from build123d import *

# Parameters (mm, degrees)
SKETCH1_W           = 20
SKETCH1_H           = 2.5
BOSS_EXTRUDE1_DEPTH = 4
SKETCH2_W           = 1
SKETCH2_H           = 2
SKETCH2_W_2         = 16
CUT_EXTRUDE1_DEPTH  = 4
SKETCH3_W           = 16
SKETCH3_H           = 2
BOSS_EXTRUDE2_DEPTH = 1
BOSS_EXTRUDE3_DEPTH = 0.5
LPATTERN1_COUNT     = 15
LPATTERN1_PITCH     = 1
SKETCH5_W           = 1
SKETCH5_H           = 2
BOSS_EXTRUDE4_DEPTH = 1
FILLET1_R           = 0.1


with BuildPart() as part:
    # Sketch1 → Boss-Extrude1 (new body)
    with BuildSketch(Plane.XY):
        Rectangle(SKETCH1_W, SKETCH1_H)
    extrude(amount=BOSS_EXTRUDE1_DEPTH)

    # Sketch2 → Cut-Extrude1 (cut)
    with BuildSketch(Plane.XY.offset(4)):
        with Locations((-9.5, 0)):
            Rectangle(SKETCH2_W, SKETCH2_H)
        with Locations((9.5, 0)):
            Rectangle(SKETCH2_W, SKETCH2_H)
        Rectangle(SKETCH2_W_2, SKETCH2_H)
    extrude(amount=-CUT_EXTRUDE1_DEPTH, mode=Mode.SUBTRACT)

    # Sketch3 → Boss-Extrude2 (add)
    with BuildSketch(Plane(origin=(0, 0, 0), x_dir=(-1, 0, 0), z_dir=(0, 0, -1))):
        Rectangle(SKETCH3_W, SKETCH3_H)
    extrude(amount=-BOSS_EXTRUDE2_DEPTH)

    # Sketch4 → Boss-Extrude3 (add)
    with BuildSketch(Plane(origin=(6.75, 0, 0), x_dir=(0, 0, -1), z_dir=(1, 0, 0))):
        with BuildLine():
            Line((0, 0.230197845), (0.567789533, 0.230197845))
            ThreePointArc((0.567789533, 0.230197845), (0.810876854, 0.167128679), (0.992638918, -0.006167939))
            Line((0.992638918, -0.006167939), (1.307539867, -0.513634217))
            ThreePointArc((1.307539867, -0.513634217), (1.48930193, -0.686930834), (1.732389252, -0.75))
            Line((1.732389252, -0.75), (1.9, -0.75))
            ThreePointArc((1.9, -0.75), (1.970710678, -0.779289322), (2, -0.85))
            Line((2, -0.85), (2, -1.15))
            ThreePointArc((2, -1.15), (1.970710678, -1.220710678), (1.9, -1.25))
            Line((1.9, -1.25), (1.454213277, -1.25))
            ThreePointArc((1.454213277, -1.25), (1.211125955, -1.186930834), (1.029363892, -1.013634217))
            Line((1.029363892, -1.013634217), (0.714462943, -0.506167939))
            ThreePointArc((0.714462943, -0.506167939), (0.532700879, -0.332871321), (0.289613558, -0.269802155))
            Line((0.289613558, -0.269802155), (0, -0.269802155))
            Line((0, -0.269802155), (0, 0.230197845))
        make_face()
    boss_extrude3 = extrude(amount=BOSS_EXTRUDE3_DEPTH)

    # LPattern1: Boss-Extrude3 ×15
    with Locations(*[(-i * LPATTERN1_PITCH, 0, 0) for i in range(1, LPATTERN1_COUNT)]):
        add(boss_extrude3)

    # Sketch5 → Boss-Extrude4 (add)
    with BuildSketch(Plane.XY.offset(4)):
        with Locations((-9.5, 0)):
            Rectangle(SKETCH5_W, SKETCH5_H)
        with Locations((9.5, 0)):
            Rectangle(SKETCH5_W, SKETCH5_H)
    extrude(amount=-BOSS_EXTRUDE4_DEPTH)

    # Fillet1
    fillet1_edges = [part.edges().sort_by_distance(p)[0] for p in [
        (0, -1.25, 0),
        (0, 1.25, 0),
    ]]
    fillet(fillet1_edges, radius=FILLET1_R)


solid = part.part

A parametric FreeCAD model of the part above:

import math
import FreeCAD as App
import Part
import Sketcher

V = App.Vector
Q = App.Units.Quantity


def edges_at(feature, points):
    """Names of the edges that pass closest to the given points."""
    edges = feature.Shape.Edges
    near = lambda p: min(range(len(edges)), key=lambda i: edges[i].distToShape(Part.Vertex(*p))[0])
    return sorted({f"Edge{near(p) + 1}" for p in points})


def add_polygon(sketch, points):
    """Adds a closed chain of lines whose ends are joined by coincident constraints."""
    first, n = sketch.GeometryCount, len(points)
    for a, b in zip(points, points[1:] + points[:1]):
        sketch.addGeometry(Part.LineSegment(App.Vector(*a, 0), App.Vector(*b, 0)), False)
    for i in range(n):
        sketch.addConstraint(Sketcher.Constraint("Coincident", first + i, 2, first + (i + 1) % n, 1))

doc = App.newDocument("Part")
body = doc.addObject("PartDesign::Body", "Body")

# Sketch on XY plane
sketch1 = body.newObject("Sketcher::SketchObject", "Sketch")
sketch1.AttachmentSupport = (doc.getObject("XY_Plane"), [""])
sketch1.MapMode = "FlatFace"
add_polygon(sketch1, [(-10, 1.2), (-10, -1.2), (10, -1.2), (10, 1.2)])  # lines 0-3
sketch1.addConstraint(Sketcher.Constraint("Vertical", 0))
sketch1.addConstraint(Sketcher.Constraint("Horizontal", 1))
sketch1.addConstraint(Sketcher.Constraint("Vertical", 2))
sketch1.addConstraint(Sketcher.Constraint("Horizontal", 3))
sketch1.addConstraint(Sketcher.Constraint("Symmetric", 0, 2, 2, 2, -1, 1))
sketch1.addConstraint(Sketcher.Constraint("DistanceX", 1, 1, 1, 2, Q("20 mm")))
sketch1.addConstraint(Sketcher.Constraint("DistanceY", 0, 2, 0, 1, Q("2.5 mm")))
pad1 = body.newObject("PartDesign::Pad", "Pad")
pad1.Profile = sketch1
pad1.Length = 4

# Sketch on XY plane
sketch2 = body.newObject("Sketcher::SketchObject", "Sketch001")
sketch2.AttachmentSupport = (doc.getObject("XY_Plane"), [""])
sketch2.MapMode = "FlatFace"
sketch2.AttachmentOffset = App.Placement(V(0, 0, 4), App.Rotation())
add_polygon(sketch2, [(-10, 1), (-10, -1), (-9, -1), (-9, 1)])  # lines 0-3
add_polygon(sketch2, [(9, 1), (9, -1), (10, -1), (10, 1)])  # lines 4-7
add_polygon(sketch2, [(-8, 1), (-8, -1), (8, -1), (8, 1)])  # lines 8-11
sketch2.addConstraint(Sketcher.Constraint("Vertical", 0))
sketch2.addConstraint(Sketcher.Constraint("Horizontal", 1))
sketch2.addConstraint(Sketcher.Constraint("Vertical", 2))
sketch2.addConstraint(Sketcher.Constraint("Horizontal", 3))
sketch2.addConstraint(Sketcher.Constraint("Vertical", 4))
sketch2.addConstraint(Sketcher.Constraint("Horizontal", 5))
sketch2.addConstraint(Sketcher.Constraint("Vertical", 6))
sketch2.addConstraint(Sketcher.Constraint("Horizontal", 7))
sketch2.addConstraint(Sketcher.Constraint("Vertical", 8))
sketch2.addConstraint(Sketcher.Constraint("Horizontal", 9))
sketch2.addConstraint(Sketcher.Constraint("Vertical", 10))
sketch2.addConstraint(Sketcher.Constraint("Horizontal", 11))
sketch2.addConstraint(Sketcher.Constraint("Symmetric", 2, 2, 4, 2, -1, 1))
sketch2.addConstraint(Sketcher.Constraint("Symmetric", 0, 2, 6, 2, -1, 1))
sketch2.addConstraint(Sketcher.Constraint("Symmetric", 8, 2, 10, 2, -1, 1))
sketch2.addConstraint(Sketcher.Constraint("Horizontal", 1, 2, 4, 2))
sketch2.addConstraint(Sketcher.Constraint("Horizontal", 5, 2, 8, 2))
sketch2.addConstraint(Sketcher.Constraint("DistanceX", 1, 1, 1, 2, Q("1 mm")))
sketch2.addConstraint(Sketcher.Constraint("DistanceX", 9, 1, 9, 2, Q("16 mm")))
sketch2.addConstraint(Sketcher.Constraint("DistanceY", 0, 2, 0, 1, Q("2 mm")))
sketch2.addConstraint(Sketcher.Constraint("DistanceX", 0, 2, -1, 1, Q("10 mm")))
pocket1 = body.newObject("PartDesign::Pocket", "Pocket")
pocket1.Profile = sketch2
pocket1.Length = 4

# Sketch on XY plane
sketch3 = body.newObject("Sketcher::SketchObject", "Sketch002")
sketch3.AttachmentSupport = (doc.getObject("XY_Plane"), [""])
sketch3.MapMode = "FlatFace"
add_polygon(sketch3, [(8, 1), (8, -1), (-8, -1), (-8, 1)])  # lines 0-3
sketch3.addConstraint(Sketcher.Constraint("Vertical", 0))
sketch3.addConstraint(Sketcher.Constraint("Horizontal", 1))
sketch3.addConstraint(Sketcher.Constraint("Vertical", 2))
sketch3.addConstraint(Sketcher.Constraint("Horizontal", 3))
sketch3.addConstraint(Sketcher.Constraint("Symmetric", 0, 2, 2, 2, -1, 1))
sketch3.addConstraint(Sketcher.Constraint("DistanceX", 1, 2, 1, 1, Q("16 mm")))
sketch3.addConstraint(Sketcher.Constraint("DistanceY", 0, 2, 0, 1, Q("2 mm")))
pad2 = body.newObject("PartDesign::Pad", "Pad001")
pad2.Profile = sketch3
pad2.Length = 1

# Sketch on YZ plane
sketch4 = body.newObject("Sketcher::SketchObject", "Sketch003")
sketch4.AttachmentSupport = (doc.getObject("YZ_Plane"), [""])
sketch4.MapMode = "FlatFace"
sketch4.AttachmentOffset = App.Placement(V(0, 0, 6.75), App.Rotation())
sketch4.addGeometry(Part.LineSegment(V(0.23, -0.57, 0), V(0.23, 0, 0)), False)
sketch4.addGeometry(Part.LineSegment(V(0.23, 0, 0), V(-0.27, 0, 0)), False)
sketch4.addGeometry(Part.LineSegment(V(-0.27, 0, 0), V(-0.27, -0.29, 0)), False)
sketch4.addGeometry(Part.ArcOfCircle(Part.Circle(V(-0.77, -0.29, 0), V(0, 0, 1), 0.5), math.radians(-58), math.radians(0)), False)
sketch4.addGeometry(Part.LineSegment(V(-0.51, -0.71, 0), V(-1.01, -1.03, 0)), False)
sketch4.addGeometry(Part.ArcOfCircle(Part.Circle(V(-0.75, -1.45, 0), V(0, 0, 1), 0.5), math.radians(122), math.radians(180)), False)
sketch4.addGeometry(Part.LineSegment(V(-1.25, -1.45, 0), V(-1.25, -1.9, 0)), False)
sketch4.addGeometry(Part.ArcOfCircle(Part.Circle(V(-1.15, -1.9, 0), V(0, 0, 1), 0.1), math.radians(180), math.radians(270)), False)
sketch4.addGeometry(Part.LineSegment(V(-1.15, -2, 0), V(-0.85, -2, 0)), False)
sketch4.addGeometry(Part.ArcOfCircle(Part.Circle(V(-0.85, -1.9, 0), V(0, 0, 1), 0.1), math.radians(-90), math.radians(0)), False)
sketch4.addGeometry(Part.LineSegment(V(-0.75, -1.9, 0), V(-0.75, -1.73, 0)), False)
sketch4.addGeometry(Part.ArcOfCircle(Part.Circle(V(-0.25, -1.73, 0), V(0, 0, 1), 0.5), math.radians(122), math.radians(180)), False)
sketch4.addGeometry(Part.LineSegment(V(-0.51, -1.31, 0), V(-0.01, -0.99, 0)), False)
sketch4.addGeometry(Part.ArcOfCircle(Part.Circle(V(-0.27, -0.57, 0), V(0, 0, 1), 0.5), math.radians(-58), math.radians(0)), False)
sketch4.addConstraint(Sketcher.Constraint("Coincident", 0, 2, 1, 1))
sketch4.addConstraint(Sketcher.Constraint("Coincident", 1, 2, 2, 1))
sketch4.addConstraint(Sketcher.Constraint("Tangent", 2, 2, 3, 2))
sketch4.addConstraint(Sketcher.Constraint("Tangent", 3, 1, 4, 1))
sketch4.addConstraint(Sketcher.Constraint("Tangent", 4, 2, 5, 1))
sketch4.addConstraint(Sketcher.Constraint("Tangent", 5, 2, 6, 1))
sketch4.addConstraint(Sketcher.Constraint("Tangent", 6, 2, 7, 1))
sketch4.addConstraint(Sketcher.Constraint("Tangent", 7, 2, 8, 1))
sketch4.addConstraint(Sketcher.Constraint("Tangent", 8, 2, 9, 1))
sketch4.addConstraint(Sketcher.Constraint("Tangent", 9, 2, 10, 1))
sketch4.addConstraint(Sketcher.Constraint("Tangent", 10, 2, 11, 2))
sketch4.addConstraint(Sketcher.Constraint("Tangent", 11, 1, 12, 1))
sketch4.addConstraint(Sketcher.Constraint("Tangent", 12, 2, 13, 1))
sketch4.addConstraint(Sketcher.Constraint("Tangent", 13, 2, 0, 1))
sketch4.addConstraint(Sketcher.Constraint("Vertical", 0))
sketch4.addConstraint(Sketcher.Constraint("Horizontal", 1))
sketch4.addConstraint(Sketcher.Constraint("Vertical", 2))
sketch4.addConstraint(Sketcher.Constraint("Vertical", 6))
sketch4.addConstraint(Sketcher.Constraint("Horizontal", 8))
sketch4.addConstraint(Sketcher.Constraint("Vertical", 10))
sketch4.addConstraint(Sketcher.Constraint("Equal", 3, 5))
sketch4.addConstraint(Sketcher.Constraint("Equal", 7, 9))
sketch4.addConstraint(Sketcher.Constraint("Equal", 5, 11))
sketch4.addConstraint(Sketcher.Constraint("Equal", 11, 13))
sketch4.addConstraint(Sketcher.Constraint("PointOnObject", 0, 2, -1))
sketch4.addConstraint(Sketcher.Constraint("Parallel", 4, 12))
sketch4.addConstraint(Sketcher.Constraint("Vertical", 13, 3, 1, 2))
sketch4.addConstraint(Sketcher.Constraint("Vertical", 5, 3, 9, 2))
sketch4.addConstraint(Sketcher.Constraint("Radius", 3, Q("0.5 mm")))
sketch4.addConstraint(Sketcher.Constraint("Radius", 7, Q("0.1 mm")))
sketch4.addConstraint(Sketcher.Constraint("DistanceY", 7, 2, -1, 1, Q("2 mm")))
sketch4.addConstraint(Sketcher.Constraint("DistanceX", 5, 3, -1, 1, Q("0.75 mm")))
sketch4.addConstraint(Sketcher.Constraint("DistanceY", 0, 1, 0, 2, Q("0.56779 mm")))
sketch4.addConstraint(Sketcher.Constraint("DistanceY", 10, 1, 10, 2, Q("0.167611 mm")))
sketch4.addConstraint(Sketcher.Constraint("DistanceY", 4, 2, 3, 1, Q("0.314901 mm")))
sketch4.addConstraint(Sketcher.Constraint("DistanceY", 2, 2, 2, 1, Q("0.289614 mm")))
pad3 = body.newObject("PartDesign::Pad", "Pad002")
pad3.Profile = sketch4
pad3.Length = 0.5
doc.recompute()

linearpattern = body.newObject("PartDesign::LinearPattern", "LinearPattern")
linearpattern.Originals = [pad3]
linearpattern.Direction = (doc.getObject("X_Axis"), [""])
linearpattern.Mode = "offset"
linearpattern.Offset = 1
linearpattern.Occurrences = 15
linearpattern.Reversed = True
body.Tip = linearpattern

# Sketch on XY plane
sketch5 = body.newObject("Sketcher::SketchObject", "Sketch004")
sketch5.AttachmentSupport = (doc.getObject("XY_Plane"), [""])
sketch5.MapMode = "FlatFace"
sketch5.AttachmentOffset = App.Placement(V(0, 0, 4), App.Rotation())
add_polygon(sketch5, [(-10, 1), (-10, -1), (-9, -1), (-9, 1)])  # lines 0-3
add_polygon(sketch5, [(9, 1), (9, -1), (10, -1), (10, 1)])  # lines 4-7
sketch5.addConstraint(Sketcher.Constraint("Vertical", 0))
sketch5.addConstraint(Sketcher.Constraint("Horizontal", 1))
sketch5.addConstraint(Sketcher.Constraint("Vertical", 2))
sketch5.addConstraint(Sketcher.Constraint("Horizontal", 3))
sketch5.addConstraint(Sketcher.Constraint("Vertical", 4))
sketch5.addConstraint(Sketcher.Constraint("Horizontal", 5))
sketch5.addConstraint(Sketcher.Constraint("Vertical", 6))
sketch5.addConstraint(Sketcher.Constraint("Horizontal", 7))
sketch5.addConstraint(Sketcher.Constraint("Symmetric", 2, 2, 4, 2, -1, 1))
sketch5.addConstraint(Sketcher.Constraint("Symmetric", 0, 2, 6, 2, -1, 1))
sketch5.addConstraint(Sketcher.Constraint("Horizontal", 1, 2, 4, 2))
sketch5.addConstraint(Sketcher.Constraint("DistanceX", 1, 1, 1, 2, Q("1 mm")))
sketch5.addConstraint(Sketcher.Constraint("DistanceY", 0, 2, 0, 1, Q("2 mm")))
sketch5.addConstraint(Sketcher.Constraint("DistanceX", 0, 2, -1, 1, Q("10 mm")))
pad4 = body.newObject("PartDesign::Pad", "Pad003")
pad4.Profile = sketch5
pad4.Length = 1
pad4.Reversed = True
doc.recompute()

fillet = body.newObject("PartDesign::Fillet", "Fillet")
fillet.Base = (pad4, edges_at(pad4, [(0, -1.25, 0), (0, 1.25, 0)]))
fillet.Radius = 0.1

doc.recompute()
